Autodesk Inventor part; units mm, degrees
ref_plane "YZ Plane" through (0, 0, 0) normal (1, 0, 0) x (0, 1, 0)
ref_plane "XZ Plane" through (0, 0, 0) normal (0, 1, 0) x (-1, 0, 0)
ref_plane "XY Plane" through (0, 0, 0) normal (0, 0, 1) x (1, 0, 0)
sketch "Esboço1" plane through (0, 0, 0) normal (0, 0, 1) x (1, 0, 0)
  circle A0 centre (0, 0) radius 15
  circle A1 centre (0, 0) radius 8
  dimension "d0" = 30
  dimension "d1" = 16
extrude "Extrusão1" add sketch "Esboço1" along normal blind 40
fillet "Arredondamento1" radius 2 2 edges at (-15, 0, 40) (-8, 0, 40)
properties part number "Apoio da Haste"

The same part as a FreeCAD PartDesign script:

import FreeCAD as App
import Part
import Sketcher
from FreeCAD import Vector


def edges_at(feature, points):
    """Names of the edges that pass closest to the given points."""
    edges = feature.Shape.Edges
    near = lambda p: min(range(len(edges)), key=lambda i: edges[i].distToShape(Part.Vertex(*p))[0])
    return sorted({f"Edge{near(p) + 1}" for p in points})

doc = App.newDocument("Part")
body = doc.addObject("PartDesign::Body", "Body")

# Sketch on XY plane
sketch1 = body.newObject("Sketcher::SketchObject", "Sketch")
sketch1.AttachmentSupport = (doc.getObject("XY_Plane"), [""])
sketch1.MapMode = "FlatFace"
sketch1.addGeometry([
    Part.Circle(Vector(0, 0, 0), Vector(0, 0, 1), 15),
    Part.Circle(Vector(0, 0, 0), Vector(0, 0, 1), 8),
], False)
sketch1.addConstraint([
    Sketcher.Constraint("Coincident", 0, 3, -1, 1),
    Sketcher.Constraint("Coincident", 1, 3, -1, 1),
    Sketcher.Constraint("Diameter", 0, 30.0),
    Sketcher.Constraint("Diameter", 1, 16.0),
])
pad1 = body.newObject("PartDesign::Pad", "Pad")
pad1.Profile = sketch1
pad1.Length = 40
doc.recompute()

fillet = body.newObject("PartDesign::Fillet", "Fillet")
fillet.Base = (pad1, edges_at(pad1, [(-15, 0, 40), (-8, 0, 40)]))
fillet.Radius = 2

doc.recompute()
